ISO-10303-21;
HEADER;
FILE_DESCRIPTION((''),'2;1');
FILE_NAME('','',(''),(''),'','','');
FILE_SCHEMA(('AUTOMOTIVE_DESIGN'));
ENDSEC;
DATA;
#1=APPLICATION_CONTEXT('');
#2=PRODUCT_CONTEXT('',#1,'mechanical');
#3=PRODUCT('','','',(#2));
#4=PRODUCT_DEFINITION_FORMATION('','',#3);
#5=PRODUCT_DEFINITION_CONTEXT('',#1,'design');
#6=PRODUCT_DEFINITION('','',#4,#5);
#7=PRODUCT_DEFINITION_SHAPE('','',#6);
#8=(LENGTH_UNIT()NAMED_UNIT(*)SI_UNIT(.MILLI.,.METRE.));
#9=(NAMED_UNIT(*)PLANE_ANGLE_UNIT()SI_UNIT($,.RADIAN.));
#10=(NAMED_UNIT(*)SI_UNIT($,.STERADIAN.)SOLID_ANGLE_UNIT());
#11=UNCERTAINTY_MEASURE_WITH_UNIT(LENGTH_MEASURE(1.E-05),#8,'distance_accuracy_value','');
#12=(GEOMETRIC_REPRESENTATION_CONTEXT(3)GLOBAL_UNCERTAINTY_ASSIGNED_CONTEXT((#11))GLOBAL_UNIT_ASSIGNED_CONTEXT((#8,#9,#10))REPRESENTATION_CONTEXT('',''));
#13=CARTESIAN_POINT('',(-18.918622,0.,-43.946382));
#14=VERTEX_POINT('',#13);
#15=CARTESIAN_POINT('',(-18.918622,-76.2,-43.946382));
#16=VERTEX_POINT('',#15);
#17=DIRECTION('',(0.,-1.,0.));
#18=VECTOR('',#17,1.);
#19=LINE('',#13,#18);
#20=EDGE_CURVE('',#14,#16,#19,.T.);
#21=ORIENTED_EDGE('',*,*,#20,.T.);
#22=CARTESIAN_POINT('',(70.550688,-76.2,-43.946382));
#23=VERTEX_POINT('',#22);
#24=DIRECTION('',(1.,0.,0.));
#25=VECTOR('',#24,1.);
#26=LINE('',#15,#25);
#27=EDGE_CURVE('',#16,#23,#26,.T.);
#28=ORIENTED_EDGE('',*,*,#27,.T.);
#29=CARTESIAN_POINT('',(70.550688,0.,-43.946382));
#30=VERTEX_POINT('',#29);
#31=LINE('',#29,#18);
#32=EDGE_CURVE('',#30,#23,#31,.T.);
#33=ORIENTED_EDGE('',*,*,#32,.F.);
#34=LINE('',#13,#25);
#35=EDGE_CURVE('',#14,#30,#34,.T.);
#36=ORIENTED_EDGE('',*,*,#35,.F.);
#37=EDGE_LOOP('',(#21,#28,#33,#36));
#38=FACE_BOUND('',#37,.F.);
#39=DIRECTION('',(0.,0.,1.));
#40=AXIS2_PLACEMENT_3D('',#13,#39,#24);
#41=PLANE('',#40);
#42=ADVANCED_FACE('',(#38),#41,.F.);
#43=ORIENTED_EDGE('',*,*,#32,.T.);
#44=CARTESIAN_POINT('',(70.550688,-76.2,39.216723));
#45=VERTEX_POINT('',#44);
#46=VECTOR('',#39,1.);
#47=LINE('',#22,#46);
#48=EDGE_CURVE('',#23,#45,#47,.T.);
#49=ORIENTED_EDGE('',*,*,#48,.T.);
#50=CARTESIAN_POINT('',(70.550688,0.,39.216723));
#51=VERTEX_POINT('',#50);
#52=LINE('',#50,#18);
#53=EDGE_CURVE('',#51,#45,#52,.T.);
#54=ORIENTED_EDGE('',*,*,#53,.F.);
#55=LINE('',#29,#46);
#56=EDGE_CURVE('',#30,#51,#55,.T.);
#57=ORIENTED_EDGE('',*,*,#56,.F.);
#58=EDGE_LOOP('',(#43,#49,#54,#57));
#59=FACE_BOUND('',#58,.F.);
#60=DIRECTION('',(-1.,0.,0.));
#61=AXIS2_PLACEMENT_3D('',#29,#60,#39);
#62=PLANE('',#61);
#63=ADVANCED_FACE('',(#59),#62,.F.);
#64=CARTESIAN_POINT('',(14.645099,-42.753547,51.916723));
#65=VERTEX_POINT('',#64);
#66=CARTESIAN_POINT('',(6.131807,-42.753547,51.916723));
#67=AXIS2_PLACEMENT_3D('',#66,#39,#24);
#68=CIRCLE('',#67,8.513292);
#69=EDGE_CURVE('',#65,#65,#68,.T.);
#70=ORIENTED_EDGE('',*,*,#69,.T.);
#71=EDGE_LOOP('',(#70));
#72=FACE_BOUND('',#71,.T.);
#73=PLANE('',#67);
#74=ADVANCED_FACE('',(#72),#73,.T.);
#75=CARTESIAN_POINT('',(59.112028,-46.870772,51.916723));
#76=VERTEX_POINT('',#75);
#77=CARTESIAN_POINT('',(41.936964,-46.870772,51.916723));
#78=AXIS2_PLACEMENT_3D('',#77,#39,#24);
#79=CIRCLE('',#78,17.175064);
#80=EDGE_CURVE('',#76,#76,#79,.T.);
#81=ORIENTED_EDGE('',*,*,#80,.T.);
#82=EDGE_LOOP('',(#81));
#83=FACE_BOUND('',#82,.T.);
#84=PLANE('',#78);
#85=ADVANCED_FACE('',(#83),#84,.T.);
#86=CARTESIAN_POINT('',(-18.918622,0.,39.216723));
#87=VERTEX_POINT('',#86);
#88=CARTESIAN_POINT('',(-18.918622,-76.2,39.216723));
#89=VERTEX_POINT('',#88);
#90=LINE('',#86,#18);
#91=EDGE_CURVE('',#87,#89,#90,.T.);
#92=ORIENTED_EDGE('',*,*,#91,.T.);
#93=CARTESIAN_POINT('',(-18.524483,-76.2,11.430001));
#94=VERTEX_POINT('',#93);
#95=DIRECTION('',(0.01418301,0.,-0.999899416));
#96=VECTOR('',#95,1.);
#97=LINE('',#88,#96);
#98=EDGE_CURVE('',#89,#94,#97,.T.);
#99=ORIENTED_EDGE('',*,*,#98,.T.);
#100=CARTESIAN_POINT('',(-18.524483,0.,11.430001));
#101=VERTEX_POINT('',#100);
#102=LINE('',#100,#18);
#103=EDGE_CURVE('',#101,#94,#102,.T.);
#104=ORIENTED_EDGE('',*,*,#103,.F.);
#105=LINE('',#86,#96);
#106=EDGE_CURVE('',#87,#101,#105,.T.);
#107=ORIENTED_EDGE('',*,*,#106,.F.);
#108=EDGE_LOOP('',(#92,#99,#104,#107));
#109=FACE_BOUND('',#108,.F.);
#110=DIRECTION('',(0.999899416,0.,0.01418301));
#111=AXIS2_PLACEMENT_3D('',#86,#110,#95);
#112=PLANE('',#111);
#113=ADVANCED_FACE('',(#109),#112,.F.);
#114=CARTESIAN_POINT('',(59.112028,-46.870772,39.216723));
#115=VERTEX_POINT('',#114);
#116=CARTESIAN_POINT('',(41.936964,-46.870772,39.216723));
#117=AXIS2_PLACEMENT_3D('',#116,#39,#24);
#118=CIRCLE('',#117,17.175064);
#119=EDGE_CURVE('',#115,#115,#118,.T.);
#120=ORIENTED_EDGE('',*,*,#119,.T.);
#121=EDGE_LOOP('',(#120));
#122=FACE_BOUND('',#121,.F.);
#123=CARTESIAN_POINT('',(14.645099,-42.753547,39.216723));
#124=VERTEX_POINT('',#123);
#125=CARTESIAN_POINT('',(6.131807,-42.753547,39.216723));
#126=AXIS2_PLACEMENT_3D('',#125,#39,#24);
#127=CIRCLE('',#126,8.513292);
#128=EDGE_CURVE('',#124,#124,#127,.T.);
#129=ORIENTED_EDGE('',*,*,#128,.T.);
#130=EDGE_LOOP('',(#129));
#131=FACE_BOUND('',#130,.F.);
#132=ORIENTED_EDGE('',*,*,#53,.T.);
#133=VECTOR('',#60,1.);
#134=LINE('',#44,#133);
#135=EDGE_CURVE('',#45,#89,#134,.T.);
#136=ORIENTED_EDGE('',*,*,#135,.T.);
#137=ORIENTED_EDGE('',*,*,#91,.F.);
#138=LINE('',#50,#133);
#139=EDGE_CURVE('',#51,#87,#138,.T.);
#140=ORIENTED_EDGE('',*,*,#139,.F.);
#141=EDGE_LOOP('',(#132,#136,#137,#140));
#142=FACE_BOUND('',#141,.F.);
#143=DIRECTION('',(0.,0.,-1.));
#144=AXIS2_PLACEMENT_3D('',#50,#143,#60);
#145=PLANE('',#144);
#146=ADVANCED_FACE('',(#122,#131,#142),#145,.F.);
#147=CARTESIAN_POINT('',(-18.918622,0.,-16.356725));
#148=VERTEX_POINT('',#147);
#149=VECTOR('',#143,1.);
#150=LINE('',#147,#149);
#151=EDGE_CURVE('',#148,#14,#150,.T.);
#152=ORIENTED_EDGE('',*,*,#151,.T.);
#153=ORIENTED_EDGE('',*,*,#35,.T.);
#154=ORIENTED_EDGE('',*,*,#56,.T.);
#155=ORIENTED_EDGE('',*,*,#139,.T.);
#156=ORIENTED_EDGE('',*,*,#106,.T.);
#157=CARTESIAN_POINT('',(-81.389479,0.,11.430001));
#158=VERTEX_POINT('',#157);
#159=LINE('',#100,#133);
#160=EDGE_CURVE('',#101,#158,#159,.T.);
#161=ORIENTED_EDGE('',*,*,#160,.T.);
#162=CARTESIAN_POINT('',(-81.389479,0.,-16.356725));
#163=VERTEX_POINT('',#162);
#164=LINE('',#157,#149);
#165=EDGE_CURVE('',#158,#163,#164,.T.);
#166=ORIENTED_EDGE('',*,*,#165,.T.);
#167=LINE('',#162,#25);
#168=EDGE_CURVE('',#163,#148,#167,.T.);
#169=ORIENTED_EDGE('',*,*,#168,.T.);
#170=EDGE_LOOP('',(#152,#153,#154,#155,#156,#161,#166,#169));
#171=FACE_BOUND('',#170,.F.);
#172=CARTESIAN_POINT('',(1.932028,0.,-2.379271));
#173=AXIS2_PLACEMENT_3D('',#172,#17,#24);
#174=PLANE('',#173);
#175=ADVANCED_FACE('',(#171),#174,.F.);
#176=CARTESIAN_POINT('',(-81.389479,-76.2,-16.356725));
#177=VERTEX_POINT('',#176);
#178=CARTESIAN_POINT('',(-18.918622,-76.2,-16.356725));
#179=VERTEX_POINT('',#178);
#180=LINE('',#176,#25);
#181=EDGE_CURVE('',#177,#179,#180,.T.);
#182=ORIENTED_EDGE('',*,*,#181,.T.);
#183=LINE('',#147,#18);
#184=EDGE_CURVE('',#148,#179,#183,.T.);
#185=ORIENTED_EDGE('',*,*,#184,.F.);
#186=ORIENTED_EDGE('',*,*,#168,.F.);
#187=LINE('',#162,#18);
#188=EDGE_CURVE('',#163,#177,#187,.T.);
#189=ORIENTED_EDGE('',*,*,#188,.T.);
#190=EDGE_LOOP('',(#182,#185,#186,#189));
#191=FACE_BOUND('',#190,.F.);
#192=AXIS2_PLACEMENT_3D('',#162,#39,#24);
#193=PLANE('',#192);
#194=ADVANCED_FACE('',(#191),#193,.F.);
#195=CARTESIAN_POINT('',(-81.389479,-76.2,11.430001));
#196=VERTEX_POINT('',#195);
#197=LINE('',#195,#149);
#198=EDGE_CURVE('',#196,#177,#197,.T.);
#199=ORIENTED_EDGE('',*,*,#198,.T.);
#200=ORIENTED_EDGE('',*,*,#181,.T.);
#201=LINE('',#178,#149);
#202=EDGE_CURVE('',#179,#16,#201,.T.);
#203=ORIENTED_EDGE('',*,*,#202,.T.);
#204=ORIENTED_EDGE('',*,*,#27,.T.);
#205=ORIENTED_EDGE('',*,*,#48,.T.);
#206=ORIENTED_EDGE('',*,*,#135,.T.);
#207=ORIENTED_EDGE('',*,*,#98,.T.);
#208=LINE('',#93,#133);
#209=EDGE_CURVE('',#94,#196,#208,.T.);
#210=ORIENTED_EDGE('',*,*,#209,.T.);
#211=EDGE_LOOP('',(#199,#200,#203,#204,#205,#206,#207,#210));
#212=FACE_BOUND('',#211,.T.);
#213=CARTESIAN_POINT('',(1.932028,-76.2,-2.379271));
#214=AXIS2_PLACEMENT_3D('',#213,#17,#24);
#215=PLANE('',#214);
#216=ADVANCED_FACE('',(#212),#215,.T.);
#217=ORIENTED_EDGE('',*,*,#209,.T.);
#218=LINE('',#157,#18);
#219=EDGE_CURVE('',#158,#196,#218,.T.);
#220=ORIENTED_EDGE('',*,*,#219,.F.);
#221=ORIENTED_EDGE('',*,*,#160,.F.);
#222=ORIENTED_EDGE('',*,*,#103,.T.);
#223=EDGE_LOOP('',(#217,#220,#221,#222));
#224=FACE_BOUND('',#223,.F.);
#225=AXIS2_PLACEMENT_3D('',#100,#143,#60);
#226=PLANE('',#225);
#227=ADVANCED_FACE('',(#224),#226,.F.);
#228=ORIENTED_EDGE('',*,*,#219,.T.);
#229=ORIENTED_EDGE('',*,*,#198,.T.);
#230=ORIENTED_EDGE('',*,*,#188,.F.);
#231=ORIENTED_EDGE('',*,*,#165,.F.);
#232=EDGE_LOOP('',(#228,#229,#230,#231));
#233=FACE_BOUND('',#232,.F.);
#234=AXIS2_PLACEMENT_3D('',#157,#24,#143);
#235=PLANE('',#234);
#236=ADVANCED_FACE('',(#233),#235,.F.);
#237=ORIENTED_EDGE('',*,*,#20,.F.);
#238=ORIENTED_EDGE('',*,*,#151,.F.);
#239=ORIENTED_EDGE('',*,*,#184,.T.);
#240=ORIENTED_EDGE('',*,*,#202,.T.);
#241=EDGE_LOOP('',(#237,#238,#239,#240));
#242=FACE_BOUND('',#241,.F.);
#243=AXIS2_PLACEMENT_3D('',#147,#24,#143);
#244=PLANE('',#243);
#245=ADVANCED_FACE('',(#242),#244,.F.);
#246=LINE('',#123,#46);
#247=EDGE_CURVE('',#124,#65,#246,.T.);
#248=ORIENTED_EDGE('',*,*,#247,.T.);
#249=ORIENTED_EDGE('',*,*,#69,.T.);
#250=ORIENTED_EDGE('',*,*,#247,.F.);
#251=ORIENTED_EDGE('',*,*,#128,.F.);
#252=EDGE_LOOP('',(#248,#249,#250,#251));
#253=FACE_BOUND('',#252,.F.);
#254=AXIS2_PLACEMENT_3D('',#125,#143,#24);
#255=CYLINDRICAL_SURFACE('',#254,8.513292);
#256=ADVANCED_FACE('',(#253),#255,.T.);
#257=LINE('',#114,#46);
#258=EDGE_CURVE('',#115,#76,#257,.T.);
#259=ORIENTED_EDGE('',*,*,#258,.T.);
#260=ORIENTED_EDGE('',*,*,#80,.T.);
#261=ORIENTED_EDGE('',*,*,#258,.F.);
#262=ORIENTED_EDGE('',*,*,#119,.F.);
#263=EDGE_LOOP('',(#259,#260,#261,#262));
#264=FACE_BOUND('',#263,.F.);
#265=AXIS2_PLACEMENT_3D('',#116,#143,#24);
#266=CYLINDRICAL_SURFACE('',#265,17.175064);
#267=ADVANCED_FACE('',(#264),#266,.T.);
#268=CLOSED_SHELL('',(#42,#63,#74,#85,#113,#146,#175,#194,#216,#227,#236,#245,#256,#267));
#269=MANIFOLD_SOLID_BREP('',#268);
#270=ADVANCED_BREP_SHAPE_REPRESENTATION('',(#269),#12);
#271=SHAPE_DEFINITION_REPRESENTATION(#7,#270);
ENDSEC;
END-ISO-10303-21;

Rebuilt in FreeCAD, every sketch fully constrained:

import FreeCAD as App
import Part
import Sketcher
from FreeCAD import Vector
Q = App.Units.Quantity


def add_polygon(sketch, points):
    """Adds a closed chain of lines whose ends are joined by coincident constraints."""
    first, n = sketch.GeometryCount, len(points)
    for a, b in zip(points, points[1:] + points[:1]):
        sketch.addGeometry(Part.LineSegment(App.Vector(*a, 0), App.Vector(*b, 0)), False)
    for i in range(n):
        sketch.addConstraint(Sketcher.Constraint("Coincident", first + i, 2, first + (i + 1) % n, 1))

doc = App.newDocument("Part")
body = doc.addObject("PartDesign::Body", "Body")

# Sketch on XZ plane
sketch1 = body.newObject("Sketcher::SketchObject", "Sketch")
sketch1.AttachmentSupport = (doc.getObject("XZ_Plane"), [""])
sketch1.MapMode = "FlatFace"
add_polygon(sketch1, [(-19, 11), (-81, 11), (-81, -16), (-19, -16), (-19, -44), (71, -44), (71, 39), (-19, 39)])  # lines 0-7
sketch1.addConstraint(Sketcher.Constraint("Horizontal", 0))
sketch1.addConstraint(Sketcher.Constraint("Vertical", 1))
sketch1.addConstraint(Sketcher.Constraint("Horizontal", 2))
sketch1.addConstraint(Sketcher.Constraint("Vertical", 3))
sketch1.addConstraint(Sketcher.Constraint("Horizontal", 4))
sketch1.addConstraint(Sketcher.Constraint("Vertical", 5))
sketch1.addConstraint(Sketcher.Constraint("Horizontal", 6))
sketch1.addConstraint(Sketcher.Constraint("Vertical", 3, 2, 6, 2))
sketch1.addConstraint(Sketcher.Constraint("DistanceX", 0, 2, 0, 1, Q("2.4749998 in")))
sketch1.addConstraint(Sketcher.Constraint("DistanceY", -1, 1, 0, 2, Q("0.45 in")))
sketch1.addConstraint(Sketcher.Constraint("DistanceX", 4, 1, 4, 2, Q("89.46931 mm")))
sketch1.addConstraint(Sketcher.Constraint("DistanceX", 2, 1, 2, 2, Q("62.470857 mm")))
sketch1.addConstraint(Sketcher.Constraint("DistanceY", 1, 2, 1, 1, Q("27.786726 mm")))
sketch1.addConstraint(Sketcher.Constraint("DistanceY", 3, 2, 3, 1, Q("27.589657 mm")))
sketch1.addConstraint(Sketcher.Constraint("DistanceY", 5, 1, 5, 2, Q("83.163105 mm")))
sketch1.addConstraint(Sketcher.Constraint("DistanceX", 0, 2, -1, 1, Q("81.389479 mm")))
pad1 = body.newObject("PartDesign::Pad", "Pad")
pad1.Profile = sketch1
pad1.Length = Q("3 in")

# Sketch on XY plane
sketch2 = body.newObject("Sketcher::SketchObject", "Sketch001")
sketch2.AttachmentSupport = (doc.getObject("XY_Plane"), [""])
sketch2.MapMode = "FlatFace"
sketch2.AttachmentOffset = App.Placement(Vector(0, 0, 39.216723), App.Rotation())
sketch2.addGeometry(Part.Circle(Vector(42, -47, 0), Vector(0, 0, 1), 17), False)
sketch2.addGeometry(Part.Circle(Vector(6, -43, 0), Vector(0, 0, 1), 9), False)
sketch2.addConstraint(Sketcher.Constraint("Diameter", 0, Q("34.350128 mm")))
sketch2.addConstraint(Sketcher.Constraint("Diameter", 1, Q("17.026584 mm")))
sketch2.addConstraint(Sketcher.Constraint("DistanceX", -1, 1, 0, 3, Q("41.936964 mm")))
sketch2.addConstraint(Sketcher.Constraint("DistanceY", 0, 3, -1, 1, Q("46.870772 mm")))
sketch2.addConstraint(Sketcher.Constraint("DistanceX", -1, 1, 1, 3, Q("6.131807 mm")))
sketch2.addConstraint(Sketcher.Constraint("DistanceY", 1, 3, -1, 1, Q("42.753547 mm")))
pad2 = body.newObject("PartDesign::Pad", "Pad001")
pad2.Profile = sketch2
pad2.Length = Q("0.5 in")

doc.recompute()
